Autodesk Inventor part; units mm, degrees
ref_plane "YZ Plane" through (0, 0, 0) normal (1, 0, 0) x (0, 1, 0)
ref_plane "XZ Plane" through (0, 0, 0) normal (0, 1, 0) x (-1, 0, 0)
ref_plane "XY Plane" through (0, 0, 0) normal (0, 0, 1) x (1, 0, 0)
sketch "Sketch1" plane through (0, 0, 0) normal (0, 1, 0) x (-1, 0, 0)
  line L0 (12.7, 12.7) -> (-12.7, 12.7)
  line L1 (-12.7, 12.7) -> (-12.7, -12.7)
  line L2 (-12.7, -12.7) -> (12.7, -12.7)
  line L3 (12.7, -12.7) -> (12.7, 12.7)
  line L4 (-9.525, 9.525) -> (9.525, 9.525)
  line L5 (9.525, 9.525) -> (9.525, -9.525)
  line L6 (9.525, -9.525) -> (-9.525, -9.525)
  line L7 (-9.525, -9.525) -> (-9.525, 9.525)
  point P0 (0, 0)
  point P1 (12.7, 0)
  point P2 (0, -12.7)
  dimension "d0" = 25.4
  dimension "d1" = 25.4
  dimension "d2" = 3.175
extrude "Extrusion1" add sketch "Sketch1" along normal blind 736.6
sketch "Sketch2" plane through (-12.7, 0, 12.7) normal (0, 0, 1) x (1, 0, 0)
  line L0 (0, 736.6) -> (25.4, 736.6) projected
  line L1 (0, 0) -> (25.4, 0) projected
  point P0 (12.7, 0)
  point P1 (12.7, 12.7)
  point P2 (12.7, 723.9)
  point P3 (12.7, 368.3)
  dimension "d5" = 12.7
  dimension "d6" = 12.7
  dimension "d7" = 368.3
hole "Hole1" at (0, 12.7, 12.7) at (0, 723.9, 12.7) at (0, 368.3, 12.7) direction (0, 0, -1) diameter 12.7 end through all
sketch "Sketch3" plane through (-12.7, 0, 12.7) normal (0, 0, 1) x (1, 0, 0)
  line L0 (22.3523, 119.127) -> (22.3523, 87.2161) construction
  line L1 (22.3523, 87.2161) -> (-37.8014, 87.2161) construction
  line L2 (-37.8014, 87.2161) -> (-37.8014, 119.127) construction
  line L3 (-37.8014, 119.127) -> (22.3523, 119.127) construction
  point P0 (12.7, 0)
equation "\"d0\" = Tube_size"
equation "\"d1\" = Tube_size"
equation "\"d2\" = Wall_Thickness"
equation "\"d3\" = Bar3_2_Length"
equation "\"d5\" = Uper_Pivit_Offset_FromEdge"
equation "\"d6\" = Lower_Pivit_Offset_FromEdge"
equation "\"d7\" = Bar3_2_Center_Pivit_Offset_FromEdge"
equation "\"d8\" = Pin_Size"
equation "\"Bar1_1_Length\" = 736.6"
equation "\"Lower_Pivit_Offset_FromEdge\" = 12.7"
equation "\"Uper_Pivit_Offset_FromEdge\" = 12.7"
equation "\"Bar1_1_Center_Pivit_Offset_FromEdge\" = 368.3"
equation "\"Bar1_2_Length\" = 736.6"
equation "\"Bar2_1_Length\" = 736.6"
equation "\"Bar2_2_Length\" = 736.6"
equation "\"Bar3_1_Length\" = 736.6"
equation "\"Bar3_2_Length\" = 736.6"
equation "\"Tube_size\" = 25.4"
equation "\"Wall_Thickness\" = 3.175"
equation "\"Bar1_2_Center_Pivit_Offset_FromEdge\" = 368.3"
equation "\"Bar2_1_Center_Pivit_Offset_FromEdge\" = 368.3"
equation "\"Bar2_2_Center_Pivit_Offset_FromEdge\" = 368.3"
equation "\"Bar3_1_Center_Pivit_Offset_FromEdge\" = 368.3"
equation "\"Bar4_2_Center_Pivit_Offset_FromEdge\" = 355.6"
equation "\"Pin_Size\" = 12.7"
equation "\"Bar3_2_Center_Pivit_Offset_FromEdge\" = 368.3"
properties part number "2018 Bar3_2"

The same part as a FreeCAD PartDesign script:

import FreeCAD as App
import Part
import Sketcher

V = App.Vector
Q = App.Units.Quantity


def add_polygon(sketch, points):
    """Adds a closed chain of lines whose ends are joined by coincident constraints."""
    first, n = sketch.GeometryCount, len(points)
    for a, b in zip(points, points[1:] + points[:1]):
        sketch.addGeometry(Part.LineSegment(App.Vector(*a, 0), App.Vector(*b, 0)), False)
    for i in range(n):
        sketch.addConstraint(Sketcher.Constraint("Coincident", first + i, 2, first + (i + 1) % n, 1))

doc = App.newDocument("Part")
params = doc.addObject("Spreadsheet::Sheet", "Params")
for row, (alias, value) in enumerate([
    ("sketch1_width", "1 in"),
    ("pad1_length", "29 in"),
    ("sketch2_diameter", "0.5 in"),
    ("hole_diameter", "0.5 in"),
], start=1):
    params.set(f"A{row}", alias)
    params.set(f"B{row}", "=" + value)
    params.setAlias(f"B{row}", alias)

body = doc.addObject("PartDesign::Body", "Body")

# Sketch on XZ plane
sketch1 = body.newObject("Sketcher::SketchObject", "Sketch")
sketch1.AttachmentSupport = (doc.getObject("XZ_Plane"), [""])
sketch1.MapMode = "FlatFace"
add_polygon(sketch1, [(-13, -13), (-13, 13), (13, 13), (13, -13)])  # lines 0-3
add_polygon(sketch1, [(10, -10), (10, 10), (-10, 10), (-10, -10)])  # lines 4-7
sketch1.addConstraint(Sketcher.Constraint("Vertical", 0))
sketch1.addConstraint(Sketcher.Constraint("Horizontal", 1))
sketch1.addConstraint(Sketcher.Constraint("Vertical", 2))
sketch1.addConstraint(Sketcher.Constraint("Horizontal", 3))
sketch1.addConstraint(Sketcher.Constraint("Vertical", 4))
sketch1.addConstraint(Sketcher.Constraint("Horizontal", 5))
sketch1.addConstraint(Sketcher.Constraint("Vertical", 6))
sketch1.addConstraint(Sketcher.Constraint("Horizontal", 7))
sketch1.addConstraint(Sketcher.Constraint("Symmetric", 0, 2, 2, 2, -1, 1))
sketch1.addConstraint(Sketcher.Constraint("Symmetric", 4, 2, 6, 2, -1, 1))
sketch1.addConstraint(Sketcher.Constraint("Equal", 3, 0))
sketch1.addConstraint(Sketcher.Constraint("Equal", 7, 4))
sketch1.addConstraint(Sketcher.Constraint("DistanceX", 1, 1, 1, 2, Q("1 in")))
sketch1.addConstraint(Sketcher.Constraint("DistanceX", 4, 2, 1, 2, Q("0.125 in")))
sketch1.setExpression("Constraints[20]", "Params.sketch1_width")
pad1 = body.newObject("PartDesign::Pad", "Pad")
pad1.Profile = sketch1
pad1.setExpression("Length", "Params.pad1_length")
pad1.Reversed = True

# Sketch on XY plane
sketch2 = body.newObject("Sketcher::SketchObject", "Sketch001")
sketch2.AttachmentSupport = (doc.getObject("XY_Plane"), [""])
sketch2.MapMode = "FlatFace"
sketch2.AttachmentOffset = App.Placement(V(0, 0, 0.5 * 25.4), App.Rotation())
sketch2.addGeometry(Part.Circle(V(0, 13, 0), V(0, 0, 1), 6), False)
sketch2.addGeometry(Part.Circle(V(0, 724, 0), V(0, 0, 1), 6), False)
sketch2.addGeometry(Part.Circle(V(0, 368, 0), V(0, 0, 1), 6), False)
sketch2.addConstraint(Sketcher.Constraint("Equal", 0, 1))
sketch2.addConstraint(Sketcher.Constraint("Equal", 1, 2))
sketch2.addConstraint(Sketcher.Constraint("PointOnObject", 0, 3, -2))
sketch2.addConstraint(Sketcher.Constraint("PointOnObject", 1, 3, -2))
sketch2.addConstraint(Sketcher.Constraint("PointOnObject", 2, 3, -2))
sketch2.addConstraint(Sketcher.Constraint("Diameter", 0, Q("0.5 in")))
sketch2.addConstraint(Sketcher.Constraint("DistanceY", 0, 3, 1, 3, Q("28 in")))
sketch2.addConstraint(Sketcher.Constraint("DistanceY", 2, 3, 1, 3, Q("14 in")))
sketch2.addConstraint(Sketcher.Constraint("DistanceY", -1, 1, 0, 3, Q("0.5 in")))
sketch2.setExpression("Constraints[5]", "Params.sketch2_diameter")
doc.recompute()
hole = body.newObject("PartDesign::Hole", "Hole")
hole.Profile = sketch2
hole.ThreadType = "None"
hole.setExpression("Diameter", "Params.hole_diameter")
hole.DepthType = "ThroughAll"

doc.recompute()
